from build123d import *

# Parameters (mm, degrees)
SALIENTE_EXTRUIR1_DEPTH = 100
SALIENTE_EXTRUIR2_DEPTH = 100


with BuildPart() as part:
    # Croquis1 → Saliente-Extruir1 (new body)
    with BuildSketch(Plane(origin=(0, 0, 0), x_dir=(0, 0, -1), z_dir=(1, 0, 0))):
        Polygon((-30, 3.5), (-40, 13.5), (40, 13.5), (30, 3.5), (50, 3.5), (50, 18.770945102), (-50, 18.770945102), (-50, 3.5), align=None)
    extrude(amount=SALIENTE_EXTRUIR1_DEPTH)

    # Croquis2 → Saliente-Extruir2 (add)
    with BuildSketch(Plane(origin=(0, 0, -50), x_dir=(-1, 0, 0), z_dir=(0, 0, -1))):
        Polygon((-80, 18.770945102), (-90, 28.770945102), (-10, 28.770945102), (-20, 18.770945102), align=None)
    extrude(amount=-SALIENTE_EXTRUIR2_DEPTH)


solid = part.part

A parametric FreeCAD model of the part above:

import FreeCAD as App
import Part
import Sketcher

doc = App.newDocument("Part")
body = doc.addObject("PartDesign::Body", "Body")

# Sketch on YZ plane
sketch1 = doc.addObject("Sketcher::SketchObject", "Sketch")
body.addObject(sketch1)
sketch1.AttachmentSupport = (doc.YZ_Plane, [""])
sketch1.MapMode = "FlatFace"
sketch1.addGeometry([
    Part.LineSegment(App.Vector(4, 30, 0), App.Vector(14, 40, 0)),  # 0
    Part.LineSegment(App.Vector(14, 40, 0), App.Vector(14, -40, 0)),  # 1
    Part.LineSegment(App.Vector(14, -40, 0), App.Vector(4, -30, 0)),  # 2
    Part.LineSegment(App.Vector(4, -30, 0), App.Vector(4, -50, 0)),  # 3
    Part.LineSegment(App.Vector(4, -50, 0), App.Vector(19, -50, 0)),  # 4
    Part.LineSegment(App.Vector(19, -50, 0), App.Vector(19, 50, 0)),  # 5
    Part.LineSegment(App.Vector(19, 50, 0), App.Vector(4, 50, 0)),  # 6
    Part.LineSegment(App.Vector(4, 50, 0), App.Vector(4, 30, 0)),  # 7
], False)
sketch1.addConstraint([
    Sketcher.Constraint("Coincident", 0, 2, 1, 1),
    Sketcher.Constraint("Coincident", 1, 2, 2, 1),
    Sketcher.Constraint("Coincident", 2, 2, 3, 1),
    Sketcher.Constraint("Coincident", 3, 2, 4, 1),
    Sketcher.Constraint("Coincident", 4, 2, 5, 1),
    Sketcher.Constraint("Coincident", 5, 2, 6, 1),
    Sketcher.Constraint("Coincident", 6, 2, 7, 1),
    Sketcher.Constraint("Coincident", 7, 2, 0, 1),
    Sketcher.Constraint("Vertical", 1),
    Sketcher.Constraint("Vertical", 3),
    Sketcher.Constraint("Horizontal", 4),
    Sketcher.Constraint("Vertical", 5),
    Sketcher.Constraint("Horizontal", 6),
    Sketcher.Constraint("Vertical", 7),
    Sketcher.Constraint("Symmetric", 3, 2, 6, 2, -1),
    Sketcher.Constraint("Perpendicular", 0, 2),
    Sketcher.Constraint("Equal", 3, 7),
    Sketcher.Constraint("Equal", 0, 2),
    Sketcher.Constraint("DistanceY", 1, 2, 1, 1, 80.0),
    Sketcher.Constraint("DistanceY", 3, 2, 3, 1, 20.0),
    Sketcher.Constraint("DistanceY", 5, 1, 5, 2, 100.0),
    Sketcher.Constraint("DistanceX", -1, 1, 0, 2, 13.5),
    Sketcher.Constraint("DistanceX", 4, 1, 4, 2, 15.270945),
])
pad1 = doc.addObject("PartDesign::Pad", "Pad")
body.addObject(pad1)
pad1.Profile = sketch1
pad1.Length = 100

# Sketch on XY plane
sketch2 = doc.addObject("Sketcher::SketchObject", "Sketch001")
body.addObject(sketch2)
sketch2.AttachmentSupport = (doc.XY_Plane, [""])
sketch2.MapMode = "FlatFace"
sketch2.AttachmentOffset = App.Placement(App.Vector(0, 0, -50), App.Rotation())
sketch2.addGeometry([
    Part.LineSegment(App.Vector(90, 29, 0), App.Vector(80, 19, 0)),
    Part.LineSegment(App.Vector(80, 19, 0), App.Vector(20, 19, 0)),
    Part.LineSegment(App.Vector(20, 19, 0), App.Vector(10, 29, 0)),
    Part.LineSegment(App.Vector(10, 29, 0), App.Vector(90, 29, 0)),
], False)
sketch2.addConstraint([
    Sketcher.Constraint("Coincident", 0, 2, 1, 1),
    Sketcher.Constraint("Coincident", 1, 2, 2, 1),
    Sketcher.Constraint("Coincident", 2, 2, 3, 1),
    Sketcher.Constraint("Coincident", 3, 2, 0, 1),
    Sketcher.Constraint("Horizontal", 1),
    Sketcher.Constraint("Horizontal", 3),
    Sketcher.Constraint("Perpendicular", 0, 2),
    Sketcher.Constraint("Equal", 0, 2),
    Sketcher.Constraint("DistanceX", 1, 2, 1, 1, 60.0),
    Sketcher.Constraint("DistanceX", 3, 1, 3, 2, 80.0),
    Sketcher.Constraint("DistanceX", -1, 1, 0, 2, 80.0),
    Sketcher.Constraint("DistanceY", -1, 1, 0, 2, 18.770945),
])
pad2 = doc.addObject("PartDesign::Pad", "Pad001")
body.addObject(pad2)
pad2.Profile = sketch2
pad2.Length = 100

doc.recompute()
